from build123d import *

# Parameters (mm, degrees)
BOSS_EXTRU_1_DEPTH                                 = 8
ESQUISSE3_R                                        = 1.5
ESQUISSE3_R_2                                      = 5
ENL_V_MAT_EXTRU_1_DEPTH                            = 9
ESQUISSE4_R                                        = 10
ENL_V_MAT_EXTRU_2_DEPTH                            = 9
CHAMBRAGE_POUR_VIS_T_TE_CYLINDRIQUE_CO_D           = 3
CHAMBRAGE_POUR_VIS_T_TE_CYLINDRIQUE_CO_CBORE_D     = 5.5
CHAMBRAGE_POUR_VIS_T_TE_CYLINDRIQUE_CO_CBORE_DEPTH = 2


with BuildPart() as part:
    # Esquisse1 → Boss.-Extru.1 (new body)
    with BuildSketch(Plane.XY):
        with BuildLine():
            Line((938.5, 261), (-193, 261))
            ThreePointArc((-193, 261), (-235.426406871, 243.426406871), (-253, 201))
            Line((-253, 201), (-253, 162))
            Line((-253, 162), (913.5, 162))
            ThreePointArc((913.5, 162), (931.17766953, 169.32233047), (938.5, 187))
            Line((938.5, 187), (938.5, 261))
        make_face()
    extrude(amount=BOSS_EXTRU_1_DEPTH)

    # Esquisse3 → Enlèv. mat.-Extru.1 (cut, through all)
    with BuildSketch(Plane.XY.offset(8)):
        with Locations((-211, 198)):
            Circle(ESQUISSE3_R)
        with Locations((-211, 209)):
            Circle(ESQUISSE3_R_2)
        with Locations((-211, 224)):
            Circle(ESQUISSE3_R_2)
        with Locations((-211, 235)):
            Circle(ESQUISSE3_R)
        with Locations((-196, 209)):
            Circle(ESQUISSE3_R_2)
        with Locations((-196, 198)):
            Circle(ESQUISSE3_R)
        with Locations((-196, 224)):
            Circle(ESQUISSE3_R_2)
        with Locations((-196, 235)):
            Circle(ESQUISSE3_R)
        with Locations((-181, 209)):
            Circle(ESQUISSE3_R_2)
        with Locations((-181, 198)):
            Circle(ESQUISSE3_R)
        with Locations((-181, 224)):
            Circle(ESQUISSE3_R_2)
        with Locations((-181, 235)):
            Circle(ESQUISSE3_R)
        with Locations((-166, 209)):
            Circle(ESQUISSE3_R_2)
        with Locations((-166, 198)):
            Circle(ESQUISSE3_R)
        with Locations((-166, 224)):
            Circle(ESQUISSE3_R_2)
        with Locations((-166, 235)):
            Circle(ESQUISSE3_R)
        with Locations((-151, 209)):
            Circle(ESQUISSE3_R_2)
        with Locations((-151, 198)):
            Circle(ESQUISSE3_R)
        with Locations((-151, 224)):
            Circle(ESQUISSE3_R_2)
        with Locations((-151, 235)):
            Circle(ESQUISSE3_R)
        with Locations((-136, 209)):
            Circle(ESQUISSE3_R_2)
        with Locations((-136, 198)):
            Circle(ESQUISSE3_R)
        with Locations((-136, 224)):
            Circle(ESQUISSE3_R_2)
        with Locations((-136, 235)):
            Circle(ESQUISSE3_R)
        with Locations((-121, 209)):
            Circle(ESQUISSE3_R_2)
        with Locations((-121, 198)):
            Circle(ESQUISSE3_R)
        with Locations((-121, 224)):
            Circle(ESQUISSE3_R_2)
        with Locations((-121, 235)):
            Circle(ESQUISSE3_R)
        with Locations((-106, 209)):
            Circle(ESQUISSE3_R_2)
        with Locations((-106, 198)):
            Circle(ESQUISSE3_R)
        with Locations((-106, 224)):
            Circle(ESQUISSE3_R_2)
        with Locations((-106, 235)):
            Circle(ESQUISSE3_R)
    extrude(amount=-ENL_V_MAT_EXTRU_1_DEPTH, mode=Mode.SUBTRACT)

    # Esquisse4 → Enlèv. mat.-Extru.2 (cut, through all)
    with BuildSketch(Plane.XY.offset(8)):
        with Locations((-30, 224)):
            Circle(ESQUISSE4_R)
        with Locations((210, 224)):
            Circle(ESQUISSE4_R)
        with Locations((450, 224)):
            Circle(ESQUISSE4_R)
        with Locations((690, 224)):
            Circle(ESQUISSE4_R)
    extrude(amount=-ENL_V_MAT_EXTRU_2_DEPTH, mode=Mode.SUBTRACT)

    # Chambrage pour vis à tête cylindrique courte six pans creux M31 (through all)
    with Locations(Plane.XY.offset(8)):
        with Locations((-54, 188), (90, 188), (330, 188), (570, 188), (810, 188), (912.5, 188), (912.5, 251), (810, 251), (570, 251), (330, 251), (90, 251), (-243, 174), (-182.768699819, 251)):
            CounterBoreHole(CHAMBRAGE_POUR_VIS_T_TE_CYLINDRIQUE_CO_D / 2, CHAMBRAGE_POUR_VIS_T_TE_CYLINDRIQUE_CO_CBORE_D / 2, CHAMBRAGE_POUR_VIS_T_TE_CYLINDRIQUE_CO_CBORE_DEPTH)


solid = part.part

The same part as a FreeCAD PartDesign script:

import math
import FreeCAD as App
import Part
import Sketcher
from FreeCAD import Vector
Q = App.Units.Quantity

doc = App.newDocument("Part")
params = doc.addObject("Spreadsheet::Sheet", "Params")
for row, (alias, value) in enumerate([
    ("sketch1_radius", "60 mm"),
    ("sketch1_radius2", "25 mm"),
    ("sketch1_height", "39 mm"),
    ("sketch1_width", "1131.5 mm"),
    ("pad1_length", "8 mm"),
    ("sketch2_diameter", "3 mm"),
    ("sketch2_diameter2", "10 mm"),
    ("sketch3_diameter", "20 mm"),
    ("sketch4_diameter", "3 mm"),
    ("hole_diameter", "3 mm"),
    ("hole_cbore_diameter", "5.5 mm"),
    ("hole_cbore_depth", "2 mm"),
], start=1):
    params.set(f"A{row}", alias)
    params.set(f"B{row}", "=" + value)
    params.setAlias(f"B{row}", alias)

body = doc.addObject("PartDesign::Body", "Body")

# Sketch on XY plane
sketch1 = body.newObject("Sketcher::SketchObject", "Sketch")
sketch1.AttachmentSupport = (doc.getObject("XY_Plane"), [""])
sketch1.MapMode = "FlatFace"
sketch1.addGeometry(Part.LineSegment(Vector(938, 261, 0), Vector(-193, 261, 0)), False)
sketch1.addGeometry(Part.ArcOfCircle(Part.Circle(Vector(-193, 201, 0), Vector(0, 0, 1), 60), math.radians(90), math.radians(180)), False)
sketch1.addGeometry(Part.LineSegment(Vector(-253, 201, 0), Vector(-253, 162, 0)), False)
sketch1.addGeometry(Part.LineSegment(Vector(-253, 162, 0), Vector(914, 162, 0)), False)
sketch1.addGeometry(Part.ArcOfCircle(Part.Circle(Vector(914, 187, 0), Vector(0, 0, 1), 25), math.radians(-90), math.radians(0)), False)
sketch1.addGeometry(Part.LineSegment(Vector(938, 187, 0), Vector(938, 261, 0)), False)
sketch1.addConstraint(Sketcher.Constraint("Tangent", 0, 2, 1, 1))
sketch1.addConstraint(Sketcher.Constraint("Tangent", 1, 2, 2, 1))
sketch1.addConstraint(Sketcher.Constraint("Coincident", 2, 2, 3, 1))
sketch1.addConstraint(Sketcher.Constraint("Tangent", 3, 2, 4, 1))
sketch1.addConstraint(Sketcher.Constraint("Tangent", 4, 2, 5, 1))
sketch1.addConstraint(Sketcher.Constraint("Coincident", 5, 2, 0, 1))
sketch1.addConstraint(Sketcher.Constraint("Horizontal", 0))
sketch1.addConstraint(Sketcher.Constraint("Vertical", 2))
sketch1.addConstraint(Sketcher.Constraint("Horizontal", 3))
sketch1.addConstraint(Sketcher.Constraint("Vertical", 5))
sketch1.addConstraint(Sketcher.Constraint("Radius", 1, Q("60 mm")))
sketch1.addConstraint(Sketcher.Constraint("Radius", 4, Q("25 mm")))
sketch1.addConstraint(Sketcher.Constraint("DistanceY", 2, 2, 2, 1, Q("39 mm")))
sketch1.addConstraint(Sketcher.Constraint("DistanceX", 0, 2, 0, 1, Q("1131.5 mm")))
sketch1.addConstraint(Sketcher.Constraint("DistanceX", 1, 3, -1, 1, Q("193 mm")))
sketch1.addConstraint(Sketcher.Constraint("DistanceY", -1, 1, 1, 3, Q("201 mm")))
sketch1.setExpression("Constraints[10]", "Params.sketch1_radius")
sketch1.setExpression("Constraints[11]", "Params.sketch1_radius2")
sketch1.setExpression("Constraints[12]", "Params.sketch1_height")
sketch1.setExpression("Constraints[13]", "Params.sketch1_width")
pad1 = body.newObject("PartDesign::Pad", "Pad")
pad1.Profile = sketch1
pad1.setExpression("Length", "Params.pad1_length")

# Sketch on XY plane
sketch2 = body.newObject("Sketcher::SketchObject", "Sketch001")
sketch2.AttachmentSupport = (doc.getObject("XY_Plane"), [""])
sketch2.MapMode = "FlatFace"
sketch2.AttachmentOffset = App.Placement(Vector(0, 0, 8), App.Rotation())
sketch2.addGeometry(Part.Circle(Vector(-211, 198, 0), Vector(0, 0, 1), 1.5), False)
sketch2.addGeometry(Part.Circle(Vector(-211, 209, 0), Vector(0, 0, 1), 5), False)
sketch2.addGeometry(Part.Circle(Vector(-211, 224, 0), Vector(0, 0, 1), 5), False)
sketch2.addGeometry(Part.Circle(Vector(-211, 235, 0), Vector(0, 0, 1), 1.5), False)
sketch2.addGeometry(Part.Circle(Vector(-196, 209, 0), Vector(0, 0, 1), 5), False)
sketch2.addGeometry(Part.Circle(Vector(-196, 198, 0), Vector(0, 0, 1), 1.5), False)
sketch2.addGeometry(Part.Circle(Vector(-196, 224, 0), Vector(0, 0, 1), 5), False)
sketch2.addGeometry(Part.Circle(Vector(-196, 235, 0), Vector(0, 0, 1), 1.5), False)
sketch2.addGeometry(Part.Circle(Vector(-181, 209, 0), Vector(0, 0, 1), 5), False)
sketch2.addGeometry(Part.Circle(Vector(-181, 198, 0), Vector(0, 0, 1), 1.5), False)
sketch2.addGeometry(Part.Circle(Vector(-181, 224, 0), Vector(0, 0, 1), 5), False)
sketch2.addGeometry(Part.Circle(Vector(-181, 235, 0), Vector(0, 0, 1), 1.5), False)
sketch2.addGeometry(Part.Circle(Vector(-166, 209, 0), Vector(0, 0, 1), 5), False)
sketch2.addGeometry(Part.Circle(Vector(-166, 198, 0), Vector(0, 0, 1), 1.5), False)
sketch2.addGeometry(Part.Circle(Vector(-166, 224, 0), Vector(0, 0, 1), 5), False)
sketch2.addGeometry(Part.Circle(Vector(-166, 235, 0), Vector(0, 0, 1), 1.5), False)
sketch2.addGeometry(Part.Circle(Vector(-151, 209, 0), Vector(0, 0, 1), 5), False)
sketch2.addGeometry(Part.Circle(Vector(-151, 198, 0), Vector(0, 0, 1), 1.5), False)
sketch2.addGeometry(Part.Circle(Vector(-151, 224, 0), Vector(0, 0, 1), 5), False)
sketch2.addGeometry(Part.Circle(Vector(-151, 235, 0), Vector(0, 0, 1), 1.5), False)
sketch2.addGeometry(Part.Circle(Vector(-136, 209, 0), Vector(0, 0, 1), 5), False)
sketch2.addGeometry(Part.Circle(Vector(-136, 198, 0), Vector(0, 0, 1), 1.5), False)
sketch2.addGeometry(Part.Circle(Vector(-136, 224, 0), Vector(0, 0, 1), 5), False)
sketch2.addGeometry(Part.Circle(Vector(-136, 235, 0), Vector(0, 0, 1), 1.5), False)
sketch2.addGeometry(Part.Circle(Vector(-121, 209, 0), Vector(0, 0, 1), 5), False)
sketch2.addGeometry(Part.Circle(Vector(-121, 198, 0), Vector(0, 0, 1), 1.5), False)
sketch2.addGeometry(Part.Circle(Vector(-121, 224, 0), Vector(0, 0, 1), 5), False)
sketch2.addGeometry(Part.Circle(Vector(-121, 235, 0), Vector(0, 0, 1), 1.5), False)
sketch2.addGeometry(Part.Circle(Vector(-106, 209, 0), Vector(0, 0, 1), 5), False)
sketch2.addGeometry(Part.Circle(Vector(-106, 198, 0), Vector(0, 0, 1), 1.5), False)
sketch2.addGeometry(Part.Circle(Vector(-106, 224, 0), Vector(0, 0, 1), 5), False)
sketch2.addGeometry(Part.Circle(Vector(-106, 235, 0), Vector(0, 0, 1), 1.5), False)
sketch2.addConstraint(Sketcher.Constraint("Equal", 1, 2))
sketch2.addConstraint(Sketcher.Constraint("Equal", 0, 3))
sketch2.addConstraint(Sketcher.Constraint("Equal", 2, 4))
sketch2.addConstraint(Sketcher.Constraint("Equal", 3, 5))
sketch2.addConstraint(Sketcher.Constraint("Equal", 4, 6))
sketch2.addConstraint(Sketcher.Constraint("Equal", 5, 7))
sketch2.addConstraint(Sketcher.Constraint("Equal", 6, 8))
sketch2.addConstraint(Sketcher.Constraint("Equal", 7, 9))
sketch2.addConstraint(Sketcher.Constraint("Equal", 8, 10))
sketch2.addConstraint(Sketcher.Constraint("Equal", 9, 11))
sketch2.addConstraint(Sketcher.Constraint("Equal", 10, 12))
sketch2.addConstraint(Sketcher.Constraint("Equal", 11, 13))
sketch2.addConstraint(Sketcher.Constraint("Equal", 12, 14))
sketch2.addConstraint(Sketcher.Constraint("Equal", 13, 15))
sketch2.addConstraint(Sketcher.Constraint("Equal", 14, 16))
sketch2.addConstraint(Sketcher.Constraint("Equal", 15, 17))
sketch2.addConstraint(Sketcher.Constraint("Equal", 16, 18))
sketch2.addConstraint(Sketcher.Constraint("Equal", 17, 19))
sketch2.addConstraint(Sketcher.Constraint("Equal", 18, 20))
sketch2.addConstraint(Sketcher.Constraint("Equal", 19, 21))
sketch2.addConstraint(Sketcher.Constraint("Equal", 20, 22))
sketch2.addConstraint(Sketcher.Constraint("Equal", 21, 23))
sketch2.addConstraint(Sketcher.Constraint("Equal", 22, 24))
sketch2.addConstraint(Sketcher.Constraint("Equal", 23, 25))
sketch2.addConstraint(Sketcher.Constraint("Equal", 24, 26))
sketch2.addConstraint(Sketcher.Constraint("Equal", 25, 27))
sketch2.addConstraint(Sketcher.Constraint("Equal", 26, 28))
sketch2.addConstraint(Sketcher.Constraint("Equal", 27, 29))
sketch2.addConstraint(Sketcher.Constraint("Equal", 28, 30))
sketch2.addConstraint(Sketcher.Constraint("Equal", 29, 31))
sketch2.addConstraint(Sketcher.Constraint("Horizontal", 1, 3, 4, 3))
sketch2.addConstraint(Sketcher.Constraint("Horizontal", 0, 3, 5, 3))
sketch2.addConstraint(Sketcher.Constraint("Horizontal", 2, 3, 6, 3))
sketch2.addConstraint(Sketcher.Constraint("Horizontal", 3, 3, 7, 3))
sketch2.addConstraint(Sketcher.Constraint("Horizontal", 4, 3, 8, 3))
sketch2.addConstraint(Sketcher.Constraint("Horizontal", 5, 3, 9, 3))
sketch2.addConstraint(Sketcher.Constraint("Horizontal", 6, 3, 10, 3))
sketch2.addConstraint(Sketcher.Constraint("Horizontal", 7, 3, 11, 3))
sketch2.addConstraint(Sketcher.Constraint("Horizontal", 8, 3, 12, 3))
sketch2.addConstraint(Sketcher.Constraint("Horizontal", 9, 3, 13, 3))
sketch2.addConstraint(Sketcher.Constraint("Horizontal", 10, 3, 14, 3))
sketch2.addConstraint(Sketcher.Constraint("Horizontal", 11, 3, 15, 3))
sketch2.addConstraint(Sketcher.Constraint("Horizontal", 12, 3, 16, 3))
sketch2.addConstraint(Sketcher.Constraint("Horizontal", 13, 3, 17, 3))
sketch2.addConstraint(Sketcher.Constraint("Horizontal", 14, 3, 18, 3))
sketch2.addConstraint(Sketcher.Constraint("Horizontal", 15, 3, 19, 3))
sketch2.addConstraint(Sketcher.Constraint("Horizontal", 16, 3, 20, 3))
sketch2.addConstraint(Sketcher.Constraint("Horizontal", 17, 3, 21, 3))
sketch2.addConstraint(Sketcher.Constraint("Horizontal", 18, 3, 22, 3))
sketch2.addConstraint(Sketcher.Constraint("Horizontal", 19, 3, 23, 3))
sketch2.addConstraint(Sketcher.Constraint("Horizontal", 20, 3, 24, 3))
sketch2.addConstraint(Sketcher.Constraint("Horizontal", 21, 3, 25, 3))
sketch2.addConstraint(Sketcher.Constraint("Horizontal", 22, 3, 26, 3))
sketch2.addConstraint(Sketcher.Constraint("Horizontal", 23, 3, 27, 3))
sketch2.addConstraint(Sketcher.Constraint("Horizontal", 24, 3, 28, 3))
sketch2.addConstraint(Sketcher.Constraint("Horizontal", 25, 3, 29, 3))
sketch2.addConstraint(Sketcher.Constraint("Horizontal", 26, 3, 30, 3))
sketch2.addConstraint(Sketcher.Constraint("Horizontal", 27, 3, 31, 3))
sketch2.addConstraint(Sketcher.Constraint("Vertical", 0, 3, 1, 3))
sketch2.addConstraint(Sketcher.Constraint("Vertical", 1, 3, 2, 3))
sketch2.addConstraint(Sketcher.Constraint("Vertical", 2, 3, 3, 3))
sketch2.addConstraint(Sketcher.Constraint("Vertical", 4, 3, 5, 3))
sketch2.addConstraint(Sketcher.Constraint("Vertical", 5, 3, 6, 3))
sketch2.addConstraint(Sketcher.Constraint("Vertical", 6, 3, 7, 3))
sketch2.addConstraint(Sketcher.Constraint("Vertical", 8, 3, 9, 3))
sketch2.addConstraint(Sketcher.Constraint("Vertical", 9, 3, 10, 3))
sketch2.addConstraint(Sketcher.Constraint("Vertical", 10, 3, 11, 3))
sketch2.addConstraint(Sketcher.Constraint("Vertical", 12, 3, 13, 3))
sketch2.addConstraint(Sketcher.Constraint("Vertical", 13, 3, 14, 3))
sketch2.addConstraint(Sketcher.Constraint("Vertical", 14, 3, 15, 3))
sketch2.addConstraint(Sketcher.Constraint("Vertical", 16, 3, 17, 3))
sketch2.addConstraint(Sketcher.Constraint("Vertical", 17, 3, 18, 3))
sketch2.addConstraint(Sketcher.Constraint("Vertical", 18, 3, 19, 3))
sketch2.addConstraint(Sketcher.Constraint("Vertical", 20, 3, 21, 3))
sketch2.addConstraint(Sketcher.Constraint("Vertical", 21, 3, 22, 3))
sketch2.addConstraint(Sketcher.Constraint("Vertical", 22, 3, 23, 3))
sketch2.addConstraint(Sketcher.Constraint("Vertical", 24, 3, 25, 3))
sketch2.addConstraint(Sketcher.Constraint("Vertical", 25, 3, 26, 3))
sketch2.addConstraint(Sketcher.Constraint("Vertical", 26, 3, 27, 3))
sketch2.addConstraint(Sketcher.Constraint("Vertical", 28, 3, 29, 3))
sketch2.addConstraint(Sketcher.Constraint("Vertical", 29, 3, 30, 3))
sketch2.addConstraint(Sketcher.Constraint("Vertical", 30, 3, 31, 3))
sketch2.addConstraint(Sketcher.Constraint("Diameter", 0, Q("3 mm")))
sketch2.addConstraint(Sketcher.Constraint("Diameter", 1, Q("10 mm")))
sketch2.addConstraint(Sketcher.Constraint("DistanceX", 0, 3, -1, 1, Q("211 mm")))
sketch2.addConstraint(Sketcher.Constraint("DistanceY", -1, 1, 0, 3, Q("198 mm")))
sketch2.addConstraint(Sketcher.Constraint("DistanceY", -1, 1, 1, 3, Q("209 mm")))
sketch2.addConstraint(Sketcher.Constraint("DistanceY", -1, 1, 2, 3, Q("224 mm")))
sketch2.addConstraint(Sketcher.Constraint("DistanceY", -1, 1, 3, 3, Q("235 mm")))
sketch2.addConstraint(Sketcher.Constraint("DistanceX", 4, 3, -1, 1, Q("196 mm")))
sketch2.addConstraint(Sketcher.Constraint("DistanceX", 8, 3, -1, 1, Q("181 mm")))
sketch2.addConstraint(Sketcher.Constraint("DistanceX", 12, 3, -1, 1, Q("166 mm")))
sketch2.addConstraint(Sketcher.Constraint("DistanceX", 16, 3, -1, 1, Q("151 mm")))
sketch2.addConstraint(Sketcher.Constraint("DistanceX", 20, 3, -1, 1, Q("136 mm")))
sketch2.addConstraint(Sketcher.Constraint("DistanceX", 24, 3, -1, 1, Q("121 mm")))
sketch2.addConstraint(Sketcher.Constraint("DistanceX", 28, 3, -1, 1, Q("106 mm")))
sketch2.setExpression("Constraints[82]", "Params.sketch2_diameter")
sketch2.setExpression("Constraints[83]", "Params.sketch2_diameter2")
pocket1 = body.newObject("PartDesign::Pocket", "Pocket")
pocket1.Profile = sketch2
pocket1.Type = "ThroughAll"

# Sketch on XY plane
sketch3 = body.newObject("Sketcher::SketchObject", "Sketch002")
sketch3.AttachmentSupport = (doc.getObject("XY_Plane"), [""])
sketch3.MapMode = "FlatFace"
sketch3.AttachmentOffset = App.Placement(Vector(0, 0, 8), App.Rotation())
sketch3.addGeometry(Part.Circle(Vector(-30, 224, 0), Vector(0, 0, 1), 10), False)
sketch3.addGeometry(Part.Circle(Vector(210, 224, 0), Vector(0, 0, 1), 10), False)
sketch3.addGeometry(Part.Circle(Vector(450, 224, 0), Vector(0, 0, 1), 10), False)
sketch3.addGeometry(Part.Circle(Vector(690, 224, 0), Vector(0, 0, 1), 10), False)
sketch3.addConstraint(Sketcher.Constraint("Equal", 0, 1))
sketch3.addConstraint(Sketcher.Constraint("Equal", 1, 2))
sketch3.addConstraint(Sketcher.Constraint("Equal", 2, 3))
sketch3.addConstraint(Sketcher.Constraint("Horizontal", 0, 3, 1, 3))
sketch3.addConstraint(Sketcher.Constraint("Horizontal", 1, 3, 2, 3))
sketch3.addConstraint(Sketcher.Constraint("Horizontal", 2, 3, 3, 3))
sketch3.addConstraint(Sketcher.Constraint("Diameter", 0, Q("20 mm")))
sketch3.addConstraint(Sketcher.Constraint("DistanceX", 0, 3, -1, 1, Q("30 mm")))
sketch3.addConstraint(Sketcher.Constraint("DistanceY", -1, 1, 0, 3, Q("224 mm")))
sketch3.addConstraint(Sketcher.Constraint("DistanceX", -1, 1, 1, 3, Q("210 mm")))
sketch3.addConstraint(Sketcher.Constraint("DistanceX", -1, 1, 2, 3, Q("450 mm")))
sketch3.addConstraint(Sketcher.Constraint("DistanceX", -1, 1, 3, 3, Q("690 mm")))
sketch3.setExpression("Constraints[6]", "Params.sketch3_diameter")
pocket2 = body.newObject("PartDesign::Pocket", "Pocket001")
pocket2.Profile = sketch3
pocket2.Type = "ThroughAll"

# Sketch on XY plane
sketch4 = body.newObject("Sketcher::SketchObject", "Sketch003")
sketch4.AttachmentSupport = (doc.getObject("XY_Plane"), [""])
sketch4.MapMode = "FlatFace"
sketch4.AttachmentOffset = App.Placement(Vector(0, 0, 8), App.Rotation())
sketch4.addGeometry(Part.Circle(Vector(-54, 188, 0), Vector(0, 0, 1), 1.5), False)
sketch4.addGeometry(Part.Circle(Vector(90, 188, 0), Vector(0, 0, 1), 1.5), False)
sketch4.addGeometry(Part.Circle(Vector(330, 188, 0), Vector(0, 0, 1), 1.5), False)
sketch4.addGeometry(Part.Circle(Vector(570, 188, 0), Vector(0, 0, 1), 1.5), False)
sketch4.addGeometry(Part.Circle(Vector(810, 188, 0), Vector(0, 0, 1), 1.5), False)
sketch4.addGeometry(Part.Circle(Vector(912.5, 188, 0), Vector(0, 0, 1), 1.5), False)
sketch4.addGeometry(Part.Circle(Vector(912.5, 251, 0), Vector(0, 0, 1), 1.5), False)
sketch4.addGeometry(Part.Circle(Vector(810, 251, 0), Vector(0, 0, 1), 1.5), False)
sketch4.addGeometry(Part.Circle(Vector(570, 251, 0), Vector(0, 0, 1), 1.5), False)
sketch4.addGeometry(Part.Circle(Vector(330, 251, 0), Vector(0, 0, 1), 1.5), False)
sketch4.addGeometry(Part.Circle(Vector(90, 251, 0), Vector(0, 0, 1), 1.5), False)
sketch4.addGeometry(Part.Circle(Vector(-243, 174, 0), Vector(0, 0, 1), 1.5), False)
sketch4.addGeometry(Part.Circle(Vector(-182.8, 251, 0), Vector(0, 0, 1), 1.5), False)
sketch4.addConstraint(Sketcher.Constraint("Equal", 0, 1))
sketch4.addConstraint(Sketcher.Constraint("Equal", 1, 2))
sketch4.addConstraint(Sketcher.Constraint("Equal", 2, 3))
sketch4.addConstraint(Sketcher.Constraint("Equal", 3, 4))
sketch4.addConstraint(Sketcher.Constraint("Equal", 4, 5))
sketch4.addConstraint(Sketcher.Constraint("Equal", 5, 6))
sketch4.addConstraint(Sketcher.Constraint("Equal", 6, 7))
sketch4.addConstraint(Sketcher.Constraint("Equal", 7, 8))
sketch4.addConstraint(Sketcher.Constraint("Equal", 8, 9))
sketch4.addConstraint(Sketcher.Constraint("Equal", 9, 10))
sketch4.addConstraint(Sketcher.Constraint("Equal", 10, 11))
sketch4.addConstraint(Sketcher.Constraint("Equal", 11, 12))
sketch4.addConstraint(Sketcher.Constraint("Horizontal", 0, 3, 1, 3))
sketch4.addConstraint(Sketcher.Constraint("Horizontal", 1, 3, 2, 3))
sketch4.addConstraint(Sketcher.Constraint("Horizontal", 2, 3, 3, 3))
sketch4.addConstraint(Sketcher.Constraint("Horizontal", 3, 3, 4, 3))
sketch4.addConstraint(Sketcher.Constraint("Horizontal", 4, 3, 5, 3))
sketch4.addConstraint(Sketcher.Constraint("Horizontal", 6, 3, 7, 3))
sketch4.addConstraint(Sketcher.Constraint("Horizontal", 7, 3, 8, 3))
sketch4.addConstraint(Sketcher.Constraint("Horizontal", 8, 3, 9, 3))
sketch4.addConstraint(Sketcher.Constraint("Horizontal", 9, 3, 10, 3))
sketch4.addConstraint(Sketcher.Constraint("Horizontal", 10, 3, 12, 3))
sketch4.addConstraint(Sketcher.Constraint("Vertical", 5, 3, 6, 3))
sketch4.addConstraint(Sketcher.Constraint("Vertical", 4, 3, 7, 3))
sketch4.addConstraint(Sketcher.Constraint("Vertical", 3, 3, 8, 3))
sketch4.addConstraint(Sketcher.Constraint("Vertical", 2, 3, 9, 3))
sketch4.addConstraint(Sketcher.Constraint("Vertical", 1, 3, 10, 3))
sketch4.addConstraint(Sketcher.Constraint("Diameter", 0, Q("3 mm")))
sketch4.addConstraint(Sketcher.Constraint("DistanceX", 0, 3, -1, 1, Q("54 mm")))
sketch4.addConstraint(Sketcher.Constraint("DistanceY", -1, 1, 0, 3, Q("188 mm")))
sketch4.addConstraint(Sketcher.Constraint("DistanceX", -1, 1, 1, 3, Q("90 mm")))
sketch4.addConstraint(Sketcher.Constraint("DistanceX", -1, 1, 2, 3, Q("330 mm")))
sketch4.addConstraint(Sketcher.Constraint("DistanceX", -1, 1, 3, 3, Q("570 mm")))
sketch4.addConstraint(Sketcher.Constraint("DistanceX", -1, 1, 4, 3, Q("810 mm")))
sketch4.addConstraint(Sketcher.Constraint("DistanceY", -1, 1, 6, 3, Q("251 mm")))
sketch4.addConstraint(Sketcher.Constraint("DistanceX", 11, 3, -1, 1, Q("243 mm")))
sketch4.addConstraint(Sketcher.Constraint("DistanceY", -1, 1, 11, 3, Q("174 mm")))
sketch4.addConstraint(Sketcher.Constraint("DistanceX", -1, 1, 5, 3, Q("912.5 mm")))
sketch4.addConstraint(Sketcher.Constraint("DistanceX", 12, 3, -1, 1, Q("182.7687 mm")))
sketch4.setExpression("Constraints[27]", "Params.sketch4_diameter")
doc.recompute()
hole = body.newObject("PartDesign::Hole", "Hole")
hole.Profile = sketch4
hole.ThreadType = "None"
hole.setExpression("Diameter", "Params.hole_diameter")
hole.DepthType = "ThroughAll"
hole.HoleCutType = "Counterbore"
hole.setExpression("HoleCutDiameter", "Params.hole_cbore_diameter")
hole.setExpression("HoleCutDepth", "Params.hole_cbore_depth")

doc.recompute()
